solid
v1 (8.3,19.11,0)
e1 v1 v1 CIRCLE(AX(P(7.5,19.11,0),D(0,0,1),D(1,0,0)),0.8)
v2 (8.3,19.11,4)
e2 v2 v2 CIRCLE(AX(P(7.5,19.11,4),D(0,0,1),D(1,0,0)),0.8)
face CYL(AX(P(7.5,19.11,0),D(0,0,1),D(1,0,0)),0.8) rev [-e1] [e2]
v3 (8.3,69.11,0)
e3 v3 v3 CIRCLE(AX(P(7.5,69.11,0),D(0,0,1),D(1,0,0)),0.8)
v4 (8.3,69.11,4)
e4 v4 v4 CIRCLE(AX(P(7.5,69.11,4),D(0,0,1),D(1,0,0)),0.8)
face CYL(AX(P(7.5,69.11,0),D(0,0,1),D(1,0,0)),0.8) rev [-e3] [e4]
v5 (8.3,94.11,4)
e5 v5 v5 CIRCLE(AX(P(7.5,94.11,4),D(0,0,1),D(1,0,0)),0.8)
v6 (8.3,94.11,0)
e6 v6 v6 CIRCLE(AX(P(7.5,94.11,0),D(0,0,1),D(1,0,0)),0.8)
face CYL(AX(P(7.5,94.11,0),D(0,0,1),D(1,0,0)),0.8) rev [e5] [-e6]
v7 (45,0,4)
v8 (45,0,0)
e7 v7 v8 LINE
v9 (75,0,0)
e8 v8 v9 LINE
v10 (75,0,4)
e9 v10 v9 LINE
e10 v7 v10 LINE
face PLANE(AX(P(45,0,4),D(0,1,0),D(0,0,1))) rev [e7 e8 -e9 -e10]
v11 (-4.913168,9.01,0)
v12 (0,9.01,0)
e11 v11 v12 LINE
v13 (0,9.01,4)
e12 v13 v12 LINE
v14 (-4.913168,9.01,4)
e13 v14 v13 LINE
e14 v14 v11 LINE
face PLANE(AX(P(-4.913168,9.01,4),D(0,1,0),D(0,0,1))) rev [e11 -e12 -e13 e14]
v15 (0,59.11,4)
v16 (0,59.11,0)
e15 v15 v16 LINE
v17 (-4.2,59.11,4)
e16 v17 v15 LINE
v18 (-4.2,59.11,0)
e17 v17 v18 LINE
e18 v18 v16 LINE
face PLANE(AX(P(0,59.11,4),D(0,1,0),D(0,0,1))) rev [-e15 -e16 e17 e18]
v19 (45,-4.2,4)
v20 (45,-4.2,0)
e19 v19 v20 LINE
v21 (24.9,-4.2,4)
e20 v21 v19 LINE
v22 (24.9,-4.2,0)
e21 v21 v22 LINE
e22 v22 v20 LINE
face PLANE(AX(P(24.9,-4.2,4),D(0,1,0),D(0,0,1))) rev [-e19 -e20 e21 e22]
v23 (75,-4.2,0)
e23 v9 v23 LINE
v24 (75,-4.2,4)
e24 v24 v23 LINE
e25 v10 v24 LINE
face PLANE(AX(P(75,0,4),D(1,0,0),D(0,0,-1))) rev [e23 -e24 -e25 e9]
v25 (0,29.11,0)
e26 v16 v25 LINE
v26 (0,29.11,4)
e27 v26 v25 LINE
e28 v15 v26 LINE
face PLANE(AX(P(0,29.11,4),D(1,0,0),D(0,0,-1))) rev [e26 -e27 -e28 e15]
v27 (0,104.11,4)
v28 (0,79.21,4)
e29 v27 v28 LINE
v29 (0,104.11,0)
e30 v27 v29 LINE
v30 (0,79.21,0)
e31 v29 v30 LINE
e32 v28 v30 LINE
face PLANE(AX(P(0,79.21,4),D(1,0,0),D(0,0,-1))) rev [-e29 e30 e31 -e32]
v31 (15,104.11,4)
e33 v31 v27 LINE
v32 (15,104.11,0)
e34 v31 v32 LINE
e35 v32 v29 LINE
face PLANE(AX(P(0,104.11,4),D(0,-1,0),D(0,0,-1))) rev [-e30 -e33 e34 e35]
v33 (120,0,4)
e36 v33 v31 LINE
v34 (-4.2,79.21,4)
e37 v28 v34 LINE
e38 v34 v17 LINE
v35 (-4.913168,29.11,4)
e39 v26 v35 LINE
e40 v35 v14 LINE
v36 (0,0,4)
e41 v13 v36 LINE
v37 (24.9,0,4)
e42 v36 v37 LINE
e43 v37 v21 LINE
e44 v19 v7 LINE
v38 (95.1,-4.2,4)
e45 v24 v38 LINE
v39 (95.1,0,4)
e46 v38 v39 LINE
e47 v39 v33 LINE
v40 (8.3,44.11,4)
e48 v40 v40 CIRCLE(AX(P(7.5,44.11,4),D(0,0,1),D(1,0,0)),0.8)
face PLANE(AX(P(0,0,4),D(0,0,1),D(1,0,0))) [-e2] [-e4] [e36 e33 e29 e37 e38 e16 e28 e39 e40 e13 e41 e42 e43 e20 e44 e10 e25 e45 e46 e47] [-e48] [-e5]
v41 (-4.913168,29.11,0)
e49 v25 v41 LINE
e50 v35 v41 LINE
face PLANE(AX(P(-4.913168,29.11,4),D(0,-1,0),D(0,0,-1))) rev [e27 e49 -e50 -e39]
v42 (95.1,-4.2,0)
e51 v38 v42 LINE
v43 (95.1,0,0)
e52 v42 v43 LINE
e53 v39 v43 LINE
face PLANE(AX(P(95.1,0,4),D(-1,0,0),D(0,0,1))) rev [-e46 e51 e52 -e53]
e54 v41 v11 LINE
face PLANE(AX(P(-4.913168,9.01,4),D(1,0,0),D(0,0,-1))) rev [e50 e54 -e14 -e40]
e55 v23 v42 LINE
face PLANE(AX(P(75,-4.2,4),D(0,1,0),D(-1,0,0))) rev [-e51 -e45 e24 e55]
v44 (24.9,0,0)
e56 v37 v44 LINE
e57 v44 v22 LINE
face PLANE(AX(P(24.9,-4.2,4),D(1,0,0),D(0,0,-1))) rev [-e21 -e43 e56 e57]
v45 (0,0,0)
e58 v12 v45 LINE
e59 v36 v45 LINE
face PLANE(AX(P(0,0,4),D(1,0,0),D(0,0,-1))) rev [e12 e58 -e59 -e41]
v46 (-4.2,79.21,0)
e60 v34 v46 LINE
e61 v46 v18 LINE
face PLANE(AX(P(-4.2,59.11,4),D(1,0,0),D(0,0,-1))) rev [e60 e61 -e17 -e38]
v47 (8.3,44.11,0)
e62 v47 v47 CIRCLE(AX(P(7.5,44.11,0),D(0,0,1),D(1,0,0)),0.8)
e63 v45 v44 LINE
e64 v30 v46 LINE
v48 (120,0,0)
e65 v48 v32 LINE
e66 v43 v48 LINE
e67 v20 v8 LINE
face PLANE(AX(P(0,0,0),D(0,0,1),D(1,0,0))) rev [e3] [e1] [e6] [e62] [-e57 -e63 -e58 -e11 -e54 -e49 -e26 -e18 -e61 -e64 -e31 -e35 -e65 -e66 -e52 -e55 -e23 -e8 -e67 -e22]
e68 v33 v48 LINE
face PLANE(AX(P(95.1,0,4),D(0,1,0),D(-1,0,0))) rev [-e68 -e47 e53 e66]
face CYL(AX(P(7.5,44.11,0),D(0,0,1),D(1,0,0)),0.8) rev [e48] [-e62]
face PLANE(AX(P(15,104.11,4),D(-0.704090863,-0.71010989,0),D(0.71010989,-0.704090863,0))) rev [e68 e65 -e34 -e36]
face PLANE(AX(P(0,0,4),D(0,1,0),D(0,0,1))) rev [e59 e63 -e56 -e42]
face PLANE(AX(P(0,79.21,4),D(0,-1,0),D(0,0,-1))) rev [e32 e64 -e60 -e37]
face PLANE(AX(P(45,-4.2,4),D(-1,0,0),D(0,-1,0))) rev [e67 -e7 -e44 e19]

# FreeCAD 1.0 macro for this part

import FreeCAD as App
import Part
import Sketcher

V = App.Vector
Q = App.Units.Quantity

doc = App.newDocument("Part")
body = doc.addObject("PartDesign::Body", "Body")

sketch1 = doc.addObject("Sketcher::SketchObject", "Sketch")
body.addObject(sketch1)
sketch1.AttachmentSupport = (doc.XY_Plane, [""])
sketch1.MapMode = "FlatFace"
sketch1.addGeometry([
    Part.LineSegment(V(0, 9.01, 0), V(0, 0, 0)),
    Part.LineSegment(V(0, 0, 0), V(24.9, 0, 0)),
    Part.LineSegment(V(24.9, 0, 0), V(24.9, -4.2, 0)),
    Part.LineSegment(V(24.9, -4.2, 0), V(45, -4.2, 0)),
    Part.LineSegment(V(45, -4.2, 0), V(45, 0, 0)),
    Part.LineSegment(V(45, 0, 0), V(75, 0, 0)),
    Part.LineSegment(V(75, 0, 0), V(75, -4.2, 0)),
    Part.LineSegment(V(75, -4.2, 0), V(95.1, -4.2, 0)),
    Part.LineSegment(V(95.1, -4.2, 0), V(95.1, 0, 0)),
    Part.LineSegment(V(95.1, 0, 0), V(120, 0, 0)),
    Part.LineSegment(V(120, 0, 0), V(15, 104.11, 0)),
    Part.LineSegment(V(15, 104.11, 0), V(0, 104.11, 0)),
    Part.LineSegment(V(0, 104.11, 0), V(0, 79.21, 0)),
    Part.LineSegment(V(0, 79.21, 0), V(-4.2, 79.21, 0)),
    Part.LineSegment(V(-4.2, 79.21, 0), V(-4.2, 59.11, 0)),
    Part.LineSegment(V(-4.2, 59.11, 0), V(0, 59.11, 0)),
    Part.LineSegment(V(0, 59.11, 0), V(0, 29.11, 0)),
    Part.LineSegment(V(0, 29.11, 0), V(-4.913168, 29.11, 0)),
    Part.LineSegment(V(-4.913168, 29.11, 0), V(-4.913168, 9.01, 0)),
    Part.LineSegment(V(-4.913168, 9.01, 0), V(0, 9.01, 0)),
], False)
sketch1.addConstraint([
    Sketcher.Constraint("Coincident", 0, 2, 1, 1),
    Sketcher.Constraint("Coincident", 1, 2, 2, 1),
    Sketcher.Constraint("Coincident", 2, 2, 3, 1),
    Sketcher.Constraint("Coincident", 3, 2, 4, 1),
    Sketcher.Constraint("Coincident", 4, 2, 5, 1),
    Sketcher.Constraint("Coincident", 5, 2, 6, 1),
    Sketcher.Constraint("Coincident", 6, 2, 7, 1),
    Sketcher.Constraint("Coincident", 7, 2, 8, 1),
    Sketcher.Constraint("Coincident", 8, 2, 9, 1),
    Sketcher.Constraint("Coincident", 9, 2, 10, 1),
    Sketcher.Constraint("Coincident", 10, 2, 11, 1),
    Sketcher.Constraint("Coincident", 11, 2, 12, 1),
    Sketcher.Constraint("Coincident", 12, 2, 13, 1),
    Sketcher.Constraint("Coincident", 13, 2, 14, 1),
    Sketcher.Constraint("Coincident", 14, 2, 15, 1),
    Sketcher.Constraint("Coincident", 15, 2, 16, 1),
    Sketcher.Constraint("Coincident", 16, 2, 17, 1),
    Sketcher.Constraint("Coincident", 17, 2, 18, 1),
    Sketcher.Constraint("Coincident", 18, 2, 19, 1),
    Sketcher.Constraint("Coincident", 19, 2, 0, 1),
    Sketcher.Constraint("Vertical", 0),
    Sketcher.Constraint("Horizontal", 1),
    Sketcher.Constraint("Vertical", 2),
    Sketcher.Constraint("Horizontal", 3),
    Sketcher.Constraint("Vertical", 4),
    Sketcher.Constraint("Horizontal", 5),
    Sketcher.Constraint("Vertical", 6),
    Sketcher.Constraint("Horizontal", 7),
    Sketcher.Constraint("Vertical", 8),
    Sketcher.Constraint("Horizontal", 9),
    Sketcher.Constraint("Horizontal", 11),
    Sketcher.Constraint("Vertical", 12),
    Sketcher.Constraint("Horizontal", 13),
    Sketcher.Constraint("Vertical", 14),
    Sketcher.Constraint("Horizontal", 15),
    Sketcher.Constraint("Vertical", 16),
    Sketcher.Constraint("Horizontal", 17),
    Sketcher.Constraint("Vertical", 18),
    Sketcher.Constraint("Horizontal", 19),
    Sketcher.Constraint("Coincident", 0, 2, -1, 1),
    Sketcher.Constraint("PointOnObject", 4, 2, -1),
    Sketcher.Constraint("PointOnObject", 8, 2, -1),
    Sketcher.Constraint("PointOnObject", 11, 2, -2),
    Sketcher.Constraint("PointOnObject", 15, 2, -2),
    Sketcher.Constraint("Horizontal", 3, 2, 6, 2),
    Sketcher.Constraint("Equal", 3, 7),
    Sketcher.Constraint("Equal", 1, 9),
    Sketcher.Constraint("Equal", 15, 2),
    Sketcher.Constraint("Equal", 9, 12),
    Sketcher.Constraint("Equal", 7, 14),
    Sketcher.Constraint("Equal", 5, 16),
    Sketcher.Constraint("Equal", 14, 18),
    Sketcher.Constraint("DistanceX", 5, 1, 5, 2, Q("30 mm")),
    Sketcher.Constraint("DistanceX", 11, 2, 11, 1, Q("15 mm")),
    Sketcher.Constraint("DistanceX", 1, 1, 1, 2, Q("24.9 mm")),
    Sketcher.Constraint("DistanceX", 3, 1, 3, 2, Q("20.1 mm")),
    Sketcher.Constraint("DistanceX", 13, 2, 13, 1, Q("4.2 mm")),
    Sketcher.Constraint("DistanceY", 0, 2, 0, 1, Q("9.01 mm")),
    Sketcher.Constraint("DistanceX", 17, 2, 17, 1, Q("4.913168 mm")),
])
pad1 = doc.addObject("PartDesign::Pad", "Pad")
body.addObject(pad1)
pad1.Profile = sketch1
pad1.Length = 4

sketch2 = doc.addObject("Sketcher::SketchObject", "Sketch001")
body.addObject(sketch2)
sketch2.AttachmentSupport = (doc.XY_Plane, [""])
sketch2.MapMode = "FlatFace"
sketch2.AttachmentOffset = App.Placement(V(0, 0, 4), App.Rotation())
sketch2.addGeometry(Part.Circle(V(7.5, 94.11, 0), V(0, 0, 1), 0.8), False)
sketch2.addConstraint([
    Sketcher.Constraint("Diameter", 0, Q("1.6 mm")),
    Sketcher.Constraint("DistanceX", -1, 1, 0, 3, Q("7.5 mm")),
    Sketcher.Constraint("DistanceY", -1, 1, 0, 3, Q("94.11 mm")),
])
pocket1 = doc.addObject("PartDesign::Pocket", "Pocket")
body.addObject(pocket1)
pocket1.Profile = sketch2
pocket1.Length = 4
doc.recompute()

linearpattern = doc.addObject("PartDesign::LinearPattern", "LinearPattern")
body.addObject(linearpattern)
linearpattern.Originals = [pocket1]
linearpattern.Direction = (doc.Y_Axis, [""])
linearpattern.Mode = "offset"
linearpattern.Offset = 25
linearpattern.Occurrences = 4
linearpattern.Reversed = True
body.Tip = linearpattern

doc.recompute()
